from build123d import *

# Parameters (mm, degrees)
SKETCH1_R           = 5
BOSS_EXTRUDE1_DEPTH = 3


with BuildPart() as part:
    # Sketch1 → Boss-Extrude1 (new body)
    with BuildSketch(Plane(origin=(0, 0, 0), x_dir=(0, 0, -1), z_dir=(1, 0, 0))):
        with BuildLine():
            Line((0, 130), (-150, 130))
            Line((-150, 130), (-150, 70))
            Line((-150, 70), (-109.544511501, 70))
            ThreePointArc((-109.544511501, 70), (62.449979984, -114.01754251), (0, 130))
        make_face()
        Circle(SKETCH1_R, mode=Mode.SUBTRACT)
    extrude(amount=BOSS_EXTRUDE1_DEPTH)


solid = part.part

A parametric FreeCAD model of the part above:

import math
import FreeCAD as App
import Part
import Sketcher

doc = App.newDocument("Part")
body = doc.addObject("PartDesign::Body", "Body")

# Sketch on YZ plane
sketch1 = body.newObject("Sketcher::SketchObject", "Sketch")
sketch1.AttachmentSupport = (doc.getObject("YZ_Plane"), [""])
sketch1.MapMode = "FlatFace"
sketch1.addGeometry(Part.LineSegment(App.Vector(130, 0, 0), App.Vector(130, 150, 0)), False)
sketch1.addGeometry(Part.LineSegment(App.Vector(130, 150, 0), App.Vector(70, 150, 0)), False)
sketch1.addGeometry(Part.LineSegment(App.Vector(70, 150, 0), App.Vector(70, 110, 0)), False)
sketch1.addGeometry(Part.ArcOfCircle(Part.Circle(App.Vector(0, 0, 0), App.Vector(0, 0, 1), 130), math.radians(57), math.radians(360)), False)
sketch1.addGeometry(Part.Circle(App.Vector(0, 0, 0), App.Vector(0, 0, 1), 5), False)
sketch1.addConstraint(Sketcher.Constraint("Coincident", 0, 2, 1, 1))
sketch1.addConstraint(Sketcher.Constraint("Coincident", 1, 2, 2, 1))
sketch1.addConstraint(Sketcher.Constraint("Coincident", 2, 2, 3, 1))
sketch1.addConstraint(Sketcher.Constraint("Tangent", 3, 2, 0, 1))
sketch1.addConstraint(Sketcher.Constraint("Vertical", 0))
sketch1.addConstraint(Sketcher.Constraint("Horizontal", 1))
sketch1.addConstraint(Sketcher.Constraint("Vertical", 2))
sketch1.addConstraint(Sketcher.Constraint("Coincident", 3, 3, -1, 1))
sketch1.addConstraint(Sketcher.Constraint("Coincident", 4, 3, -1, 1))
sketch1.addConstraint(Sketcher.Constraint("Diameter", 4, 10.0))
sketch1.addConstraint(Sketcher.Constraint("Radius", 3, 130.0))
sketch1.addConstraint(Sketcher.Constraint("DistanceX", 1, 2, 1, 1, 60.0))
sketch1.addConstraint(Sketcher.Constraint("DistanceY", 0, 1, 0, 2, 150.0))
pad1 = body.newObject("PartDesign::Pad", "Pad")
pad1.Profile = sketch1
pad1.Length = 3

doc.recompute()
